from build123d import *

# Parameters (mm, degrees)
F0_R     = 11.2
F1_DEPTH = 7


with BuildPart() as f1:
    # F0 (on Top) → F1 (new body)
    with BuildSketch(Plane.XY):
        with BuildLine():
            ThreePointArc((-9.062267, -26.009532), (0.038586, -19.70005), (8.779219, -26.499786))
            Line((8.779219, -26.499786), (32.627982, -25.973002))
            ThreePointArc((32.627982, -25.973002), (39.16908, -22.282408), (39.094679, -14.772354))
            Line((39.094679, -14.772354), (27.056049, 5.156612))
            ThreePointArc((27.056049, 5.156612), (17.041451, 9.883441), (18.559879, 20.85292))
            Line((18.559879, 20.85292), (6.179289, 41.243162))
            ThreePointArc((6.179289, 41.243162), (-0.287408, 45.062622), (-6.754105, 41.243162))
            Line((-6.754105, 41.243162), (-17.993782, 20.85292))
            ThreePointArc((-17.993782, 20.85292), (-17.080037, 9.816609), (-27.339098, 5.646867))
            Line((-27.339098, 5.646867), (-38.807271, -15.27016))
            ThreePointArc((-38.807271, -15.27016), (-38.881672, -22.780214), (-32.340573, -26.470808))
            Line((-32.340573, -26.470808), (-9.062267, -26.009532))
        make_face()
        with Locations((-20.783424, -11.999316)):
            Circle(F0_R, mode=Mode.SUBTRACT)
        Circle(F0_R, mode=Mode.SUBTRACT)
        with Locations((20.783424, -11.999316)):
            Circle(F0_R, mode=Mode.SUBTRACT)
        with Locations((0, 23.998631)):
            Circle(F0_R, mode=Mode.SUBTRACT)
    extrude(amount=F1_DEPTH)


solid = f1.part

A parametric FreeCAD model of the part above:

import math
import FreeCAD as App
import Part
import Sketcher
from FreeCAD import Vector
Q = App.Units.Quantity

doc = App.newDocument("Part")
body = doc.addObject("PartDesign::Body", "Body")

# Sketch on XY plane
sketch1 = body.newObject("Sketcher::SketchObject", "Sketch")
sketch1.AttachmentSupport = (doc.getObject("XY_Plane"), [""])
sketch1.MapMode = "FlatFace"
sketch1.addGeometry(Part.ArcOfCircle(Part.Circle(Vector(-0.218277, -29.047866, 0), Vector(0, 0, 1), 9.351344), math.radians(15.812057), math.radians(161.039952)), False)
sketch1.addGeometry(Part.LineSegment(Vector(8.779219, -26.499786, 0), Vector(32.627982, -25.973002, 0)), False)
sketch1.addGeometry(Part.ArcOfCircle(Part.Circle(Vector(32.774274, -18.590365, 0), Vector(0, 0, 1), 7.384086), math.radians(-91.135203), math.radians(31.135204)), False)
sketch1.addGeometry(Part.LineSegment(Vector(39.094679, -14.772354, 0), Vector(27.056049, 5.156612, 0)), False)
sketch1.addGeometry(Part.ArcOfCircle(Part.Circle(Vector(25.265328, 14.3349, 0), Vector(0, 0, 1), 9.351344), math.radians(135.812054), math.radians(281.039949)), False)
sketch1.addGeometry(Part.LineSegment(Vector(18.559879, 20.85292, 0), Vector(6.179289, 41.243162, 0)), False)
sketch1.addGeometry(Part.ArcOfCircle(Part.Circle(Vector(-0.287408, 37.678536, 0), Vector(0, 0, 1), 7.384086), math.radians(28.864797), math.radians(151.135203)), False)
sketch1.addGeometry(Part.LineSegment(Vector(-6.754105, 41.243162, 0), Vector(-17.993782, 20.85292, 0)), False)
sketch1.addGeometry(Part.ArcOfCircle(Part.Circle(Vector(-25.047052, 14.712967, 0), Vector(0, 0, 1), 9.351344), math.radians(-104.187945), math.radians(41.039951)), False)
sketch1.addGeometry(Part.LineSegment(Vector(-27.339098, 5.646867, 0), Vector(-38.807271, -15.27016, 0)), False)
sketch1.addGeometry(Part.ArcOfCircle(Part.Circle(Vector(-32.486866, -19.088171, 0), Vector(0, 0, 1), 7.384086), math.radians(148.864796), math.radians(271.13521)), False)
sketch1.addGeometry(Part.LineSegment(Vector(-32.340573, -26.470808, 0), Vector(-9.062267, -26.009532, 0)), False)
sketch1.addGeometry(Part.Circle(Vector(-20.783424, -11.999316, 0), Vector(0, 0, 1), 11.2), False)
sketch1.addGeometry(Part.Circle(Vector(0, 0, 0), Vector(0, 0, 1), 11.2), False)
sketch1.addGeometry(Part.Circle(Vector(20.783424, -11.999316, 0), Vector(0, 0, 1), 11.2), False)
sketch1.addGeometry(Part.Circle(Vector(0, 23.998631, 0), Vector(0, 0, 1), 11.2), False)
sketch1.addConstraint(Sketcher.Constraint("Coincident", 0, 1, 1, 1))
sketch1.addConstraint(Sketcher.Constraint("Coincident", 1, 2, 2, 1))
sketch1.addConstraint(Sketcher.Constraint("Coincident", 2, 2, 3, 1))
sketch1.addConstraint(Sketcher.Constraint("Coincident", 3, 2, 4, 2))
sketch1.addConstraint(Sketcher.Constraint("Coincident", 4, 1, 5, 1))
sketch1.addConstraint(Sketcher.Constraint("Coincident", 5, 2, 6, 1))
sketch1.addConstraint(Sketcher.Constraint("Coincident", 6, 2, 7, 1))
sketch1.addConstraint(Sketcher.Constraint("Coincident", 7, 2, 8, 2))
sketch1.addConstraint(Sketcher.Constraint("Coincident", 8, 1, 9, 1))
sketch1.addConstraint(Sketcher.Constraint("Coincident", 9, 2, 10, 1))
sketch1.addConstraint(Sketcher.Constraint("Coincident", 10, 2, 11, 1))
sketch1.addConstraint(Sketcher.Constraint("Coincident", 11, 2, 0, 2))
sketch1.addConstraint(Sketcher.Constraint("Coincident", 13, 3, -1, 1))
sketch1.addConstraint(Sketcher.Constraint("PointOnObject", 15, 3, -2))
sketch1.addConstraint(Sketcher.Constraint("Diameter", 12, Q("22.4 mm")))
sketch1.addConstraint(Sketcher.Constraint("Diameter", 13, Q("22.4 mm")))
sketch1.addConstraint(Sketcher.Constraint("Diameter", 14, Q("22.4 mm")))
sketch1.addConstraint(Sketcher.Constraint("Diameter", 15, Q("22.4 mm")))
sketch1.addConstraint(Sketcher.Constraint("Radius", 0, Q("9.351344 mm")))
sketch1.addConstraint(Sketcher.Constraint("Radius", 2, Q("7.384086 mm")))
sketch1.addConstraint(Sketcher.Constraint("Radius", 4, Q("9.351344 mm")))
sketch1.addConstraint(Sketcher.Constraint("Radius", 6, Q("7.384086 mm")))
sketch1.addConstraint(Sketcher.Constraint("Radius", 8, Q("9.351344 mm")))
sketch1.addConstraint(Sketcher.Constraint("Radius", 10, Q("7.384086 mm")))
sketch1.addConstraint(Sketcher.Constraint("DistanceY", -1, 1, 4, 3, Q("14.3349 mm")))
sketch1.addConstraint(Sketcher.Constraint("DistanceX", 8, 1, -1, 1, Q("27.339098 mm")))
sketch1.addConstraint(Sketcher.Constraint("DistanceY", 0, 3, 2, 3, Q("10.457501 mm")))
sketch1.addConstraint(Sketcher.Constraint("DistanceY", 2, 3, 6, 3, Q("56.268901 mm")))
sketch1.addConstraint(Sketcher.Constraint("DistanceX", 0, 3, 14, 3, Q("21.001701 mm")))
sketch1.addConstraint(Sketcher.Constraint("DistanceY", 1, 2, 4, 3, Q("40.307902 mm")))
sketch1.addConstraint(Sketcher.Constraint("DistanceY", 8, 1, 8, 3, Q("9.0661 mm")))
sketch1.addConstraint(Sketcher.Constraint("DistanceX", 9, 2, 10, 2, Q("6.466698 mm")))
sketch1.addConstraint(Sketcher.Constraint("DistanceX", 10, 3, 11, 2, Q("23.424599 mm")))
sketch1.addConstraint(Sketcher.Constraint("Distance", 1, Q("23.85458 mm")))
sketch1.addConstraint(Sketcher.Constraint("Distance", 5, Q("23.85458 mm")))
sketch1.addConstraint(Sketcher.Constraint("Distance", 9, Q("23.85458 mm")))
sketch1.addConstraint(Sketcher.Constraint("DistanceX", -1, 1, 4, 3, Q("25.265328 mm")))
sketch1.addConstraint(Sketcher.Constraint("DistanceY", 10, 3, -1, 1, Q("19.088171 mm")))
sketch1.addConstraint(Sketcher.Constraint("DistanceY", -1, 1, 15, 3, Q("23.998631 mm")))
sketch1.addConstraint(Sketcher.Constraint("DistanceX", -1, 1, 0, 1, Q("8.779219 mm")))
sketch1.addConstraint(Sketcher.Constraint("DistanceX", -1, 1, 2, 2, Q("39.094679 mm")))
sketch1.addConstraint(Sketcher.Constraint("DistanceX", -1, 1, 3, 2, Q("27.056049 mm")))
sketch1.addConstraint(Sketcher.Constraint("DistanceX", -1, 1, 4, 1, Q("18.559879 mm")))
sketch1.addConstraint(Sketcher.Constraint("DistanceX", -1, 1, 5, 2, Q("6.179289 mm")))
sketch1.addConstraint(Sketcher.Constraint("DistanceY", -1, 1, 6, 2, Q("41.243162 mm")))
sketch1.addConstraint(Sketcher.Constraint("DistanceX", 7, 2, -1, 1, Q("17.993782 mm")))
sketch1.addConstraint(Sketcher.Constraint("DistanceY", -1, 1, 7, 2, Q("20.85292 mm")))
sketch1.addConstraint(Sketcher.Constraint("DistanceX", 9, 2, -1, 1, Q("38.807271 mm")))
sketch1.addConstraint(Sketcher.Constraint("DistanceY", 11, 2, -1, 1, Q("26.009532 mm")))
sketch1.addConstraint(Sketcher.Constraint("DistanceX", 0, 3, 2, 3, Q("32.99255 mm")))
sketch1.addConstraint(Sketcher.Constraint("DistanceX", 10, 3, 12, 3, Q("11.703442 mm")))
sketch1.addConstraint(Sketcher.Constraint("DistanceY", 0, 3, 12, 3, Q("17.04855 mm")))
sketch1.addConstraint(Sketcher.Constraint("DistanceY", 2, 3, 14, 3, Q("6.591049 mm")))
pad1 = body.newObject("PartDesign::Pad", "Pad")
pad1.Profile = sketch1
pad1.Length = 7

doc.recompute()
